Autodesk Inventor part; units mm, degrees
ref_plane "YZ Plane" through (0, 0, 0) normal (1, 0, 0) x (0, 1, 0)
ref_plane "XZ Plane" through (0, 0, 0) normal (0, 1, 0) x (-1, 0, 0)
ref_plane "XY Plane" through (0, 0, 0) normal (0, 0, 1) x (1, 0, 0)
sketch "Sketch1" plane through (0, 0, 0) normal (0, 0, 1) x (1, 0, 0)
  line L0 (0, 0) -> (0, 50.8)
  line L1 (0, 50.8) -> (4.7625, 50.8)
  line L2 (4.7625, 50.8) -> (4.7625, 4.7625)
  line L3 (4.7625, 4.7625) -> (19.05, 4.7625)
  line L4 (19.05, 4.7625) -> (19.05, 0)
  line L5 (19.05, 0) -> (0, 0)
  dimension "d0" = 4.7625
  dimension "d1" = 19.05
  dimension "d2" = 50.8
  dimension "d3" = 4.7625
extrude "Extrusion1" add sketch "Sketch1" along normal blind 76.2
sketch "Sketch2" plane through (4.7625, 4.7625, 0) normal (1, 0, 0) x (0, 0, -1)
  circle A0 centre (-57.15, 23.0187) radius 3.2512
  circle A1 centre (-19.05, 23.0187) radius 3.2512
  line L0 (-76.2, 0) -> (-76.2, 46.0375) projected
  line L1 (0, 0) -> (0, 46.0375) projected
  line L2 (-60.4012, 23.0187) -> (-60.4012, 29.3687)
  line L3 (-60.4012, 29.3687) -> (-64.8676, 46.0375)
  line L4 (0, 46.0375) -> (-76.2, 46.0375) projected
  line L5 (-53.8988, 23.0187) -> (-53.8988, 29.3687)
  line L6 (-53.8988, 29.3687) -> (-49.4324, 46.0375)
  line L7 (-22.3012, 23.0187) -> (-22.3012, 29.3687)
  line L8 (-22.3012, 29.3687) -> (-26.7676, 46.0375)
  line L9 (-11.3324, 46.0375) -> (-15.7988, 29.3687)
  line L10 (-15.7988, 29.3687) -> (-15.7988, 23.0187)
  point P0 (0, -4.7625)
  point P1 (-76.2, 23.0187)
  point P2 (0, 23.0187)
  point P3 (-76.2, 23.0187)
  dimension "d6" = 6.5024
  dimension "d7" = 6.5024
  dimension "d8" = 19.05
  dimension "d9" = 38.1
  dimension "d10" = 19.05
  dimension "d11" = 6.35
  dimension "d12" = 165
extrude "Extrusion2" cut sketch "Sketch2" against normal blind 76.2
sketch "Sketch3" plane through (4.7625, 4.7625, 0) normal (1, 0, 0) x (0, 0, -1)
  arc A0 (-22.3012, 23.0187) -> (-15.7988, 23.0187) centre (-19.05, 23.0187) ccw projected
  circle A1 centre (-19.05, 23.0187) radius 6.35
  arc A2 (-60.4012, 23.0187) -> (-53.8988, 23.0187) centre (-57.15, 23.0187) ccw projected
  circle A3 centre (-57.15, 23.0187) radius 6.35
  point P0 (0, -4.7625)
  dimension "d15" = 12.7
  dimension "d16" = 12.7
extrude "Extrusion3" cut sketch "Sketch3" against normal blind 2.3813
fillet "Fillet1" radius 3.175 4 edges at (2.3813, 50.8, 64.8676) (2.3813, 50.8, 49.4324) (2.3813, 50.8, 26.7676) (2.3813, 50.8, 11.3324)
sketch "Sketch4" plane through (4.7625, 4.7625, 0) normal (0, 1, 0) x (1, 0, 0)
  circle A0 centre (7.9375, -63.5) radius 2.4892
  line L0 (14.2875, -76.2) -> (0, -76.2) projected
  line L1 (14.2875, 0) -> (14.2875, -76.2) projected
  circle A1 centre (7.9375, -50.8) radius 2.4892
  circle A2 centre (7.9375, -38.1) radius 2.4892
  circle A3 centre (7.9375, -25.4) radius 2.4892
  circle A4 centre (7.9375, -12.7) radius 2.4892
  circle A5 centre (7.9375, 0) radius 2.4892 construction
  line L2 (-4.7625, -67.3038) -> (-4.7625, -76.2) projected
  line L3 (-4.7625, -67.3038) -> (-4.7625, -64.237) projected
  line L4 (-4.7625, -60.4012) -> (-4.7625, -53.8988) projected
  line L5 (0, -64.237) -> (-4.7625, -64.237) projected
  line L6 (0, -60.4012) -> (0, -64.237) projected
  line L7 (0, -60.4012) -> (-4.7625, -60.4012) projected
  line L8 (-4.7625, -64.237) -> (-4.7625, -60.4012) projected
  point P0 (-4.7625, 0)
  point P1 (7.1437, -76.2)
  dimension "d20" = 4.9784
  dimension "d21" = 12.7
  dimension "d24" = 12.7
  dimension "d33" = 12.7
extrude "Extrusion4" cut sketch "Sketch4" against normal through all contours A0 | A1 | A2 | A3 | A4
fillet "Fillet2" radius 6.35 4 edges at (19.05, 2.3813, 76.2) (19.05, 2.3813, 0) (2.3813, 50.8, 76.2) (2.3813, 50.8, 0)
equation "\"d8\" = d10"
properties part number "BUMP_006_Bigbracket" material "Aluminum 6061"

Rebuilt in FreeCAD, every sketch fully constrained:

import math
import FreeCAD as App
import Part
import Sketcher
from FreeCAD import Vector
Q = App.Units.Quantity


def edges_at(feature, points):
    """Names of the edges that pass closest to the given points."""
    edges = feature.Shape.Edges
    near = lambda p: min(range(len(edges)), key=lambda i: edges[i].distToShape(Part.Vertex(*p))[0])
    return sorted({f"Edge{near(p) + 1}" for p in points})

doc = App.newDocument("Part")
params = doc.addObject("Spreadsheet::Sheet", "Params")
for row, (alias, value) in enumerate([
    ("sketch1_height", "2 in"),
    ("sketch1_width", "0.75 in"),
    ("sketch1_width2", "0.1875 in"),
    ("pad1_length", "3 in"),
    ("sketch2_radius", "0.128 in"),
    ("sketch2_width", "0.25 in"),
    ("pocket1_length", "3 in"),
    ("sketch3_diameter", "0.5 in"),
    ("pocket2_length", "0.093752 in"),
    ("fillet_radius", "0.125 in"),
    ("sketch4_diameter", "0.196 in"),
    ("fillet2_radius", "0.25 in"),
], start=1):
    params.set(f"A{row}", alias)
    params.set(f"B{row}", "=" + value)
    params.setAlias(f"B{row}", alias)

body = doc.addObject("PartDesign::Body", "Body")

# Sketch on XY plane
sketch1 = body.newObject("Sketcher::SketchObject", "Sketch")
sketch1.AttachmentSupport = (doc.getObject("XY_Plane"), [""])
sketch1.MapMode = "FlatFace"
sketch1.addGeometry([
    Part.LineSegment(Vector(0, 50.8, 0), Vector(0, 0, 0)),  # 0
    Part.LineSegment(Vector(0, 0, 0), Vector(19.05, 0, 0)),  # 1
    Part.LineSegment(Vector(19.05, 0, 0), Vector(19.05, 4.7625, 0)),  # 2
    Part.LineSegment(Vector(19.05, 4.7625, 0), Vector(4.7625, 4.7625, 0)),  # 3
    Part.LineSegment(Vector(4.7625, 4.7625, 0), Vector(4.7625, 50.8, 0)),  # 4
    Part.LineSegment(Vector(4.7625, 50.8, 0), Vector(0, 50.8, 0)),  # 5
], False)
sketch1.addConstraint([
    Sketcher.Constraint("Coincident", 0, 2, 1, 1),
    Sketcher.Constraint("Coincident", 1, 2, 2, 1),
    Sketcher.Constraint("Coincident", 2, 2, 3, 1),
    Sketcher.Constraint("Coincident", 3, 2, 4, 1),
    Sketcher.Constraint("Coincident", 4, 2, 5, 1),
    Sketcher.Constraint("Coincident", 5, 2, 0, 1),
    Sketcher.Constraint("Vertical", 0),
    Sketcher.Constraint("Horizontal", 1),
    Sketcher.Constraint("Vertical", 2),
    Sketcher.Constraint("Horizontal", 3),
    Sketcher.Constraint("Vertical", 4),
    Sketcher.Constraint("Horizontal", 5),
    Sketcher.Constraint("Coincident", 0, 2, -1, 1),
    Sketcher.Constraint("Equal", 5, 2),
    Sketcher.Constraint("DistanceY", 0, 2, 0, 1, Q("2 in")),
    Sketcher.Constraint("DistanceX", 1, 1, 1, 2, Q("0.75 in")),
    Sketcher.Constraint("DistanceX", 5, 2, 5, 1, Q("0.1875 in")),
])
sketch1.setExpression("Constraints[14]", "Params.sketch1_height")
sketch1.setExpression("Constraints[15]", "Params.sketch1_width")
sketch1.setExpression("Constraints[16]", "Params.sketch1_width2")
pad1 = body.newObject("PartDesign::Pad", "Pad")
pad1.Profile = sketch1
pad1.setExpression("Length", "Params.pad1_length")

# Sketch on YZ plane
sketch2 = body.newObject("Sketcher::SketchObject", "Sketch001")
sketch2.AttachmentSupport = (doc.getObject("YZ_Plane"), [""])
sketch2.MapMode = "FlatFace"
sketch2.AttachmentOffset = App.Placement(Vector(0, 0, 0.1875 * 25.4), App.Rotation())
sketch2.addGeometry([
    Part.ArcOfCircle(Part.Circle(Vector(27.7812, 57.15, 0), Vector(0, 0, 1), 3.2512), math.radians(90), math.radians(270)),  # 0
    Part.LineSegment(Vector(27.7812, 53.8988, 0), Vector(34.1312, 53.8988, 0)),  # 1
    Part.LineSegment(Vector(34.1312, 53.8988, 0), Vector(50.8, 49.4324, 0)),  # 2
    Part.LineSegment(Vector(50.8, 49.4324, 0), Vector(50.8, 64.8676, 0)),  # 3
    Part.LineSegment(Vector(50.8, 64.8676, 0), Vector(34.1312, 60.4012, 0)),  # 4
    Part.LineSegment(Vector(34.1312, 60.4012, 0), Vector(27.7812, 60.4012, 0)),  # 5
    Part.LineSegment(Vector(50.8, 11.3324, 0), Vector(50.8, 26.7676, 0)),  # 6
    Part.LineSegment(Vector(50.8, 26.7676, 0), Vector(34.1312, 22.3012, 0)),  # 7
    Part.LineSegment(Vector(34.1312, 22.3012, 0), Vector(27.7812, 22.3012, 0)),  # 8
    Part.ArcOfCircle(Part.Circle(Vector(27.7812, 19.05, 0), Vector(0, 0, 1), 3.2512), math.radians(90), math.radians(270)),  # 9
    Part.LineSegment(Vector(27.7812, 15.7988, 0), Vector(34.1312, 15.7988, 0)),  # 10
    Part.LineSegment(Vector(34.1312, 15.7988, 0), Vector(50.8, 11.3324, 0)),  # 11
], False)
sketch2.addConstraint([
    Sketcher.Constraint("Tangent", 0, 2, 1, 1),
    Sketcher.Constraint("Coincident", 1, 2, 2, 1),
    Sketcher.Constraint("Coincident", 2, 2, 3, 1),
    Sketcher.Constraint("Coincident", 3, 2, 4, 1),
    Sketcher.Constraint("Coincident", 4, 2, 5, 1),
    Sketcher.Constraint("Tangent", 5, 2, 0, 1),
    Sketcher.Constraint("Coincident", 6, 2, 7, 1),
    Sketcher.Constraint("Coincident", 7, 2, 8, 1),
    Sketcher.Constraint("Tangent", 8, 2, 9, 1),
    Sketcher.Constraint("Tangent", 9, 2, 10, 1),
    Sketcher.Constraint("Coincident", 10, 2, 11, 1),
    Sketcher.Constraint("Coincident", 11, 2, 6, 1),
    Sketcher.Constraint("Horizontal", 1),
    Sketcher.Constraint("Vertical", 3),
    Sketcher.Constraint("Horizontal", 5),
    Sketcher.Constraint("Vertical", 6),
    Sketcher.Constraint("Horizontal", 8),
    Sketcher.Constraint("Horizontal", 10),
    Sketcher.Constraint("Equal", 0, 9),
    Sketcher.Constraint("Parallel", 4, 7),
    Sketcher.Constraint("Parallel", 2, 11),
    Sketcher.Constraint("Vertical", 0, 3, 9, 3),
    Sketcher.Constraint("Vertical", 1, 2, 4, 2),
    Sketcher.Constraint("Vertical", 3, 2, 6, 2),
    Sketcher.Constraint("Vertical", 4, 2, 7, 2),
    Sketcher.Constraint("Vertical", 7, 2, 10, 2),
    Sketcher.Constraint("Equal", 2, 4),
    Sketcher.Constraint("Angle", 4, Q("-165 deg")),
    Sketcher.Constraint("Radius", 0, Q("0.128 in")),
    Sketcher.Constraint("DistanceX", 1, 1, 1, 2, Q("0.25 in")),
    Sketcher.Constraint("DistanceY", 9, 3, 0, 3, Q("1.5 in")),
    Sketcher.Constraint("DistanceY", -1, 1, 9, 3, Q("0.75 in")),
    Sketcher.Constraint("DistanceX", -1, 1, 2, 2, Q("2 in")),
    Sketcher.Constraint("DistanceX", -1, 1, 0, 3, Q("1.093748 in")),
])
sketch2.setExpression("Constraints[28]", "Params.sketch2_radius")
sketch2.setExpression("Constraints[29]", "Params.sketch2_width")
pocket1 = body.newObject("PartDesign::Pocket", "Pocket")
pocket1.Profile = sketch2
pocket1.setExpression("Length", "Params.pocket1_length")

# Sketch on YZ plane
sketch3 = body.newObject("Sketcher::SketchObject", "Sketch002")
sketch3.AttachmentSupport = (doc.getObject("YZ_Plane"), [""])
sketch3.MapMode = "FlatFace"
sketch3.AttachmentOffset = App.Placement(Vector(0, 0, 0.1875 * 25.4), App.Rotation())
sketch3.addGeometry([
    Part.Circle(Vector(27.7812, 19.05, 0), Vector(0, 0, 1), 6.35),
    Part.Circle(Vector(27.7812, 57.15, 0), Vector(0, 0, 1), 6.35),
], False)
sketch3.addConstraint([
    Sketcher.Constraint("Equal", 0, 1),
    Sketcher.Constraint("Vertical", 0, 3, 1, 3),
    Sketcher.Constraint("Diameter", 0, Q("0.5 in")),
    Sketcher.Constraint("DistanceY", 0, 3, 1, 3, Q("1.5 in")),
    Sketcher.Constraint("DistanceY", -1, 1, 0, 3, Q("0.75 in")),
    Sketcher.Constraint("DistanceX", -1, 1, 0, 3, Q("1.093748 in")),
])
sketch3.setExpression("Constraints[2]", "Params.sketch3_diameter")
pocket2 = body.newObject("PartDesign::Pocket", "Pocket001")
pocket2.Profile = sketch3
pocket2.setExpression("Length", "Params.pocket2_length")
doc.recompute()

fillet = body.newObject("PartDesign::Fillet", "Fillet")
fillet.Base = (pocket2, edges_at(pocket2, [
    (2.381, 50.8, 64.868),
    (2.381, 50.8, 49.432),
    (2.381, 50.8, 26.768),
    (2.381, 50.8, 11.332),
]))
fillet.setExpression("Radius", "Params.fillet_radius")

# Sketch on XZ plane
sketch4 = body.newObject("Sketcher::SketchObject", "Sketch003")
sketch4.AttachmentSupport = (doc.getObject("XZ_Plane"), [""])
sketch4.MapMode = "FlatFace"
sketch4.AttachmentOffset = App.Placement(Vector(0, 0, -0.1875 * 25.4), App.Rotation())
sketch4.addGeometry([
    Part.Circle(Vector(12.7, 63.5, 0), Vector(0, 0, 1), 2.4892),  # 0
    Part.Circle(Vector(12.7, 50.8, 0), Vector(0, 0, 1), 2.4892),  # 1
    Part.Circle(Vector(12.7, 38.1, 0), Vector(0, 0, 1), 2.4892),  # 2
    Part.Circle(Vector(12.7, 25.4, 0), Vector(0, 0, 1), 2.4892),  # 3
    Part.Circle(Vector(12.7, 12.7, 0), Vector(0, 0, 1), 2.4892),  # 4
], False)
sketch4.addConstraint([
    Sketcher.Constraint("Equal", 0, 1),
    Sketcher.Constraint("Equal", 1, 2),
    Sketcher.Constraint("Equal", 2, 3),
    Sketcher.Constraint("Equal", 3, 4),
    Sketcher.Constraint("Vertical", 0, 3, 1, 3),
    Sketcher.Constraint("Vertical", 1, 3, 2, 3),
    Sketcher.Constraint("Vertical", 2, 3, 3, 3),
    Sketcher.Constraint("Vertical", 3, 3, 4, 3),
    Sketcher.Constraint("Diameter", 0, Q("0.196 in")),
    Sketcher.Constraint("DistanceY", -1, 1, 3, 3, Q("1 in")),
    Sketcher.Constraint("DistanceY", 2, 3, 0, 3, Q("1 in")),
    Sketcher.Constraint("DistanceY", 3, 3, 1, 3, Q("1 in")),
    Sketcher.Constraint("DistanceY", 4, 3, 2, 3, Q("1 in")),
    Sketcher.Constraint("DistanceX", -1, 1, 0, 3, Q("0.5 in")),
    Sketcher.Constraint("DistanceY", -1, 1, 4, 3, Q("0.5 in")),
])
sketch4.setExpression("Constraints[8]", "Params.sketch4_diameter")
pocket3 = body.newObject("PartDesign::Pocket", "Pocket002")
pocket3.Profile = sketch4
pocket3.Type = "ThroughAll"
pocket3.Reversed = True
doc.recompute()

fillet2 = body.newObject("PartDesign::Fillet", "Fillet001")
fillet2.Base = (pocket3, edges_at(pocket3, [
    (19.05, 2.381, 76.2),
    (19.05, 2.381, 0),
    (2.381, 50.8, 76.2),
    (2.381, 50.8, 0),
]))
fillet2.setExpression("Radius", "Params.fillet2_radius")

doc.recompute()
